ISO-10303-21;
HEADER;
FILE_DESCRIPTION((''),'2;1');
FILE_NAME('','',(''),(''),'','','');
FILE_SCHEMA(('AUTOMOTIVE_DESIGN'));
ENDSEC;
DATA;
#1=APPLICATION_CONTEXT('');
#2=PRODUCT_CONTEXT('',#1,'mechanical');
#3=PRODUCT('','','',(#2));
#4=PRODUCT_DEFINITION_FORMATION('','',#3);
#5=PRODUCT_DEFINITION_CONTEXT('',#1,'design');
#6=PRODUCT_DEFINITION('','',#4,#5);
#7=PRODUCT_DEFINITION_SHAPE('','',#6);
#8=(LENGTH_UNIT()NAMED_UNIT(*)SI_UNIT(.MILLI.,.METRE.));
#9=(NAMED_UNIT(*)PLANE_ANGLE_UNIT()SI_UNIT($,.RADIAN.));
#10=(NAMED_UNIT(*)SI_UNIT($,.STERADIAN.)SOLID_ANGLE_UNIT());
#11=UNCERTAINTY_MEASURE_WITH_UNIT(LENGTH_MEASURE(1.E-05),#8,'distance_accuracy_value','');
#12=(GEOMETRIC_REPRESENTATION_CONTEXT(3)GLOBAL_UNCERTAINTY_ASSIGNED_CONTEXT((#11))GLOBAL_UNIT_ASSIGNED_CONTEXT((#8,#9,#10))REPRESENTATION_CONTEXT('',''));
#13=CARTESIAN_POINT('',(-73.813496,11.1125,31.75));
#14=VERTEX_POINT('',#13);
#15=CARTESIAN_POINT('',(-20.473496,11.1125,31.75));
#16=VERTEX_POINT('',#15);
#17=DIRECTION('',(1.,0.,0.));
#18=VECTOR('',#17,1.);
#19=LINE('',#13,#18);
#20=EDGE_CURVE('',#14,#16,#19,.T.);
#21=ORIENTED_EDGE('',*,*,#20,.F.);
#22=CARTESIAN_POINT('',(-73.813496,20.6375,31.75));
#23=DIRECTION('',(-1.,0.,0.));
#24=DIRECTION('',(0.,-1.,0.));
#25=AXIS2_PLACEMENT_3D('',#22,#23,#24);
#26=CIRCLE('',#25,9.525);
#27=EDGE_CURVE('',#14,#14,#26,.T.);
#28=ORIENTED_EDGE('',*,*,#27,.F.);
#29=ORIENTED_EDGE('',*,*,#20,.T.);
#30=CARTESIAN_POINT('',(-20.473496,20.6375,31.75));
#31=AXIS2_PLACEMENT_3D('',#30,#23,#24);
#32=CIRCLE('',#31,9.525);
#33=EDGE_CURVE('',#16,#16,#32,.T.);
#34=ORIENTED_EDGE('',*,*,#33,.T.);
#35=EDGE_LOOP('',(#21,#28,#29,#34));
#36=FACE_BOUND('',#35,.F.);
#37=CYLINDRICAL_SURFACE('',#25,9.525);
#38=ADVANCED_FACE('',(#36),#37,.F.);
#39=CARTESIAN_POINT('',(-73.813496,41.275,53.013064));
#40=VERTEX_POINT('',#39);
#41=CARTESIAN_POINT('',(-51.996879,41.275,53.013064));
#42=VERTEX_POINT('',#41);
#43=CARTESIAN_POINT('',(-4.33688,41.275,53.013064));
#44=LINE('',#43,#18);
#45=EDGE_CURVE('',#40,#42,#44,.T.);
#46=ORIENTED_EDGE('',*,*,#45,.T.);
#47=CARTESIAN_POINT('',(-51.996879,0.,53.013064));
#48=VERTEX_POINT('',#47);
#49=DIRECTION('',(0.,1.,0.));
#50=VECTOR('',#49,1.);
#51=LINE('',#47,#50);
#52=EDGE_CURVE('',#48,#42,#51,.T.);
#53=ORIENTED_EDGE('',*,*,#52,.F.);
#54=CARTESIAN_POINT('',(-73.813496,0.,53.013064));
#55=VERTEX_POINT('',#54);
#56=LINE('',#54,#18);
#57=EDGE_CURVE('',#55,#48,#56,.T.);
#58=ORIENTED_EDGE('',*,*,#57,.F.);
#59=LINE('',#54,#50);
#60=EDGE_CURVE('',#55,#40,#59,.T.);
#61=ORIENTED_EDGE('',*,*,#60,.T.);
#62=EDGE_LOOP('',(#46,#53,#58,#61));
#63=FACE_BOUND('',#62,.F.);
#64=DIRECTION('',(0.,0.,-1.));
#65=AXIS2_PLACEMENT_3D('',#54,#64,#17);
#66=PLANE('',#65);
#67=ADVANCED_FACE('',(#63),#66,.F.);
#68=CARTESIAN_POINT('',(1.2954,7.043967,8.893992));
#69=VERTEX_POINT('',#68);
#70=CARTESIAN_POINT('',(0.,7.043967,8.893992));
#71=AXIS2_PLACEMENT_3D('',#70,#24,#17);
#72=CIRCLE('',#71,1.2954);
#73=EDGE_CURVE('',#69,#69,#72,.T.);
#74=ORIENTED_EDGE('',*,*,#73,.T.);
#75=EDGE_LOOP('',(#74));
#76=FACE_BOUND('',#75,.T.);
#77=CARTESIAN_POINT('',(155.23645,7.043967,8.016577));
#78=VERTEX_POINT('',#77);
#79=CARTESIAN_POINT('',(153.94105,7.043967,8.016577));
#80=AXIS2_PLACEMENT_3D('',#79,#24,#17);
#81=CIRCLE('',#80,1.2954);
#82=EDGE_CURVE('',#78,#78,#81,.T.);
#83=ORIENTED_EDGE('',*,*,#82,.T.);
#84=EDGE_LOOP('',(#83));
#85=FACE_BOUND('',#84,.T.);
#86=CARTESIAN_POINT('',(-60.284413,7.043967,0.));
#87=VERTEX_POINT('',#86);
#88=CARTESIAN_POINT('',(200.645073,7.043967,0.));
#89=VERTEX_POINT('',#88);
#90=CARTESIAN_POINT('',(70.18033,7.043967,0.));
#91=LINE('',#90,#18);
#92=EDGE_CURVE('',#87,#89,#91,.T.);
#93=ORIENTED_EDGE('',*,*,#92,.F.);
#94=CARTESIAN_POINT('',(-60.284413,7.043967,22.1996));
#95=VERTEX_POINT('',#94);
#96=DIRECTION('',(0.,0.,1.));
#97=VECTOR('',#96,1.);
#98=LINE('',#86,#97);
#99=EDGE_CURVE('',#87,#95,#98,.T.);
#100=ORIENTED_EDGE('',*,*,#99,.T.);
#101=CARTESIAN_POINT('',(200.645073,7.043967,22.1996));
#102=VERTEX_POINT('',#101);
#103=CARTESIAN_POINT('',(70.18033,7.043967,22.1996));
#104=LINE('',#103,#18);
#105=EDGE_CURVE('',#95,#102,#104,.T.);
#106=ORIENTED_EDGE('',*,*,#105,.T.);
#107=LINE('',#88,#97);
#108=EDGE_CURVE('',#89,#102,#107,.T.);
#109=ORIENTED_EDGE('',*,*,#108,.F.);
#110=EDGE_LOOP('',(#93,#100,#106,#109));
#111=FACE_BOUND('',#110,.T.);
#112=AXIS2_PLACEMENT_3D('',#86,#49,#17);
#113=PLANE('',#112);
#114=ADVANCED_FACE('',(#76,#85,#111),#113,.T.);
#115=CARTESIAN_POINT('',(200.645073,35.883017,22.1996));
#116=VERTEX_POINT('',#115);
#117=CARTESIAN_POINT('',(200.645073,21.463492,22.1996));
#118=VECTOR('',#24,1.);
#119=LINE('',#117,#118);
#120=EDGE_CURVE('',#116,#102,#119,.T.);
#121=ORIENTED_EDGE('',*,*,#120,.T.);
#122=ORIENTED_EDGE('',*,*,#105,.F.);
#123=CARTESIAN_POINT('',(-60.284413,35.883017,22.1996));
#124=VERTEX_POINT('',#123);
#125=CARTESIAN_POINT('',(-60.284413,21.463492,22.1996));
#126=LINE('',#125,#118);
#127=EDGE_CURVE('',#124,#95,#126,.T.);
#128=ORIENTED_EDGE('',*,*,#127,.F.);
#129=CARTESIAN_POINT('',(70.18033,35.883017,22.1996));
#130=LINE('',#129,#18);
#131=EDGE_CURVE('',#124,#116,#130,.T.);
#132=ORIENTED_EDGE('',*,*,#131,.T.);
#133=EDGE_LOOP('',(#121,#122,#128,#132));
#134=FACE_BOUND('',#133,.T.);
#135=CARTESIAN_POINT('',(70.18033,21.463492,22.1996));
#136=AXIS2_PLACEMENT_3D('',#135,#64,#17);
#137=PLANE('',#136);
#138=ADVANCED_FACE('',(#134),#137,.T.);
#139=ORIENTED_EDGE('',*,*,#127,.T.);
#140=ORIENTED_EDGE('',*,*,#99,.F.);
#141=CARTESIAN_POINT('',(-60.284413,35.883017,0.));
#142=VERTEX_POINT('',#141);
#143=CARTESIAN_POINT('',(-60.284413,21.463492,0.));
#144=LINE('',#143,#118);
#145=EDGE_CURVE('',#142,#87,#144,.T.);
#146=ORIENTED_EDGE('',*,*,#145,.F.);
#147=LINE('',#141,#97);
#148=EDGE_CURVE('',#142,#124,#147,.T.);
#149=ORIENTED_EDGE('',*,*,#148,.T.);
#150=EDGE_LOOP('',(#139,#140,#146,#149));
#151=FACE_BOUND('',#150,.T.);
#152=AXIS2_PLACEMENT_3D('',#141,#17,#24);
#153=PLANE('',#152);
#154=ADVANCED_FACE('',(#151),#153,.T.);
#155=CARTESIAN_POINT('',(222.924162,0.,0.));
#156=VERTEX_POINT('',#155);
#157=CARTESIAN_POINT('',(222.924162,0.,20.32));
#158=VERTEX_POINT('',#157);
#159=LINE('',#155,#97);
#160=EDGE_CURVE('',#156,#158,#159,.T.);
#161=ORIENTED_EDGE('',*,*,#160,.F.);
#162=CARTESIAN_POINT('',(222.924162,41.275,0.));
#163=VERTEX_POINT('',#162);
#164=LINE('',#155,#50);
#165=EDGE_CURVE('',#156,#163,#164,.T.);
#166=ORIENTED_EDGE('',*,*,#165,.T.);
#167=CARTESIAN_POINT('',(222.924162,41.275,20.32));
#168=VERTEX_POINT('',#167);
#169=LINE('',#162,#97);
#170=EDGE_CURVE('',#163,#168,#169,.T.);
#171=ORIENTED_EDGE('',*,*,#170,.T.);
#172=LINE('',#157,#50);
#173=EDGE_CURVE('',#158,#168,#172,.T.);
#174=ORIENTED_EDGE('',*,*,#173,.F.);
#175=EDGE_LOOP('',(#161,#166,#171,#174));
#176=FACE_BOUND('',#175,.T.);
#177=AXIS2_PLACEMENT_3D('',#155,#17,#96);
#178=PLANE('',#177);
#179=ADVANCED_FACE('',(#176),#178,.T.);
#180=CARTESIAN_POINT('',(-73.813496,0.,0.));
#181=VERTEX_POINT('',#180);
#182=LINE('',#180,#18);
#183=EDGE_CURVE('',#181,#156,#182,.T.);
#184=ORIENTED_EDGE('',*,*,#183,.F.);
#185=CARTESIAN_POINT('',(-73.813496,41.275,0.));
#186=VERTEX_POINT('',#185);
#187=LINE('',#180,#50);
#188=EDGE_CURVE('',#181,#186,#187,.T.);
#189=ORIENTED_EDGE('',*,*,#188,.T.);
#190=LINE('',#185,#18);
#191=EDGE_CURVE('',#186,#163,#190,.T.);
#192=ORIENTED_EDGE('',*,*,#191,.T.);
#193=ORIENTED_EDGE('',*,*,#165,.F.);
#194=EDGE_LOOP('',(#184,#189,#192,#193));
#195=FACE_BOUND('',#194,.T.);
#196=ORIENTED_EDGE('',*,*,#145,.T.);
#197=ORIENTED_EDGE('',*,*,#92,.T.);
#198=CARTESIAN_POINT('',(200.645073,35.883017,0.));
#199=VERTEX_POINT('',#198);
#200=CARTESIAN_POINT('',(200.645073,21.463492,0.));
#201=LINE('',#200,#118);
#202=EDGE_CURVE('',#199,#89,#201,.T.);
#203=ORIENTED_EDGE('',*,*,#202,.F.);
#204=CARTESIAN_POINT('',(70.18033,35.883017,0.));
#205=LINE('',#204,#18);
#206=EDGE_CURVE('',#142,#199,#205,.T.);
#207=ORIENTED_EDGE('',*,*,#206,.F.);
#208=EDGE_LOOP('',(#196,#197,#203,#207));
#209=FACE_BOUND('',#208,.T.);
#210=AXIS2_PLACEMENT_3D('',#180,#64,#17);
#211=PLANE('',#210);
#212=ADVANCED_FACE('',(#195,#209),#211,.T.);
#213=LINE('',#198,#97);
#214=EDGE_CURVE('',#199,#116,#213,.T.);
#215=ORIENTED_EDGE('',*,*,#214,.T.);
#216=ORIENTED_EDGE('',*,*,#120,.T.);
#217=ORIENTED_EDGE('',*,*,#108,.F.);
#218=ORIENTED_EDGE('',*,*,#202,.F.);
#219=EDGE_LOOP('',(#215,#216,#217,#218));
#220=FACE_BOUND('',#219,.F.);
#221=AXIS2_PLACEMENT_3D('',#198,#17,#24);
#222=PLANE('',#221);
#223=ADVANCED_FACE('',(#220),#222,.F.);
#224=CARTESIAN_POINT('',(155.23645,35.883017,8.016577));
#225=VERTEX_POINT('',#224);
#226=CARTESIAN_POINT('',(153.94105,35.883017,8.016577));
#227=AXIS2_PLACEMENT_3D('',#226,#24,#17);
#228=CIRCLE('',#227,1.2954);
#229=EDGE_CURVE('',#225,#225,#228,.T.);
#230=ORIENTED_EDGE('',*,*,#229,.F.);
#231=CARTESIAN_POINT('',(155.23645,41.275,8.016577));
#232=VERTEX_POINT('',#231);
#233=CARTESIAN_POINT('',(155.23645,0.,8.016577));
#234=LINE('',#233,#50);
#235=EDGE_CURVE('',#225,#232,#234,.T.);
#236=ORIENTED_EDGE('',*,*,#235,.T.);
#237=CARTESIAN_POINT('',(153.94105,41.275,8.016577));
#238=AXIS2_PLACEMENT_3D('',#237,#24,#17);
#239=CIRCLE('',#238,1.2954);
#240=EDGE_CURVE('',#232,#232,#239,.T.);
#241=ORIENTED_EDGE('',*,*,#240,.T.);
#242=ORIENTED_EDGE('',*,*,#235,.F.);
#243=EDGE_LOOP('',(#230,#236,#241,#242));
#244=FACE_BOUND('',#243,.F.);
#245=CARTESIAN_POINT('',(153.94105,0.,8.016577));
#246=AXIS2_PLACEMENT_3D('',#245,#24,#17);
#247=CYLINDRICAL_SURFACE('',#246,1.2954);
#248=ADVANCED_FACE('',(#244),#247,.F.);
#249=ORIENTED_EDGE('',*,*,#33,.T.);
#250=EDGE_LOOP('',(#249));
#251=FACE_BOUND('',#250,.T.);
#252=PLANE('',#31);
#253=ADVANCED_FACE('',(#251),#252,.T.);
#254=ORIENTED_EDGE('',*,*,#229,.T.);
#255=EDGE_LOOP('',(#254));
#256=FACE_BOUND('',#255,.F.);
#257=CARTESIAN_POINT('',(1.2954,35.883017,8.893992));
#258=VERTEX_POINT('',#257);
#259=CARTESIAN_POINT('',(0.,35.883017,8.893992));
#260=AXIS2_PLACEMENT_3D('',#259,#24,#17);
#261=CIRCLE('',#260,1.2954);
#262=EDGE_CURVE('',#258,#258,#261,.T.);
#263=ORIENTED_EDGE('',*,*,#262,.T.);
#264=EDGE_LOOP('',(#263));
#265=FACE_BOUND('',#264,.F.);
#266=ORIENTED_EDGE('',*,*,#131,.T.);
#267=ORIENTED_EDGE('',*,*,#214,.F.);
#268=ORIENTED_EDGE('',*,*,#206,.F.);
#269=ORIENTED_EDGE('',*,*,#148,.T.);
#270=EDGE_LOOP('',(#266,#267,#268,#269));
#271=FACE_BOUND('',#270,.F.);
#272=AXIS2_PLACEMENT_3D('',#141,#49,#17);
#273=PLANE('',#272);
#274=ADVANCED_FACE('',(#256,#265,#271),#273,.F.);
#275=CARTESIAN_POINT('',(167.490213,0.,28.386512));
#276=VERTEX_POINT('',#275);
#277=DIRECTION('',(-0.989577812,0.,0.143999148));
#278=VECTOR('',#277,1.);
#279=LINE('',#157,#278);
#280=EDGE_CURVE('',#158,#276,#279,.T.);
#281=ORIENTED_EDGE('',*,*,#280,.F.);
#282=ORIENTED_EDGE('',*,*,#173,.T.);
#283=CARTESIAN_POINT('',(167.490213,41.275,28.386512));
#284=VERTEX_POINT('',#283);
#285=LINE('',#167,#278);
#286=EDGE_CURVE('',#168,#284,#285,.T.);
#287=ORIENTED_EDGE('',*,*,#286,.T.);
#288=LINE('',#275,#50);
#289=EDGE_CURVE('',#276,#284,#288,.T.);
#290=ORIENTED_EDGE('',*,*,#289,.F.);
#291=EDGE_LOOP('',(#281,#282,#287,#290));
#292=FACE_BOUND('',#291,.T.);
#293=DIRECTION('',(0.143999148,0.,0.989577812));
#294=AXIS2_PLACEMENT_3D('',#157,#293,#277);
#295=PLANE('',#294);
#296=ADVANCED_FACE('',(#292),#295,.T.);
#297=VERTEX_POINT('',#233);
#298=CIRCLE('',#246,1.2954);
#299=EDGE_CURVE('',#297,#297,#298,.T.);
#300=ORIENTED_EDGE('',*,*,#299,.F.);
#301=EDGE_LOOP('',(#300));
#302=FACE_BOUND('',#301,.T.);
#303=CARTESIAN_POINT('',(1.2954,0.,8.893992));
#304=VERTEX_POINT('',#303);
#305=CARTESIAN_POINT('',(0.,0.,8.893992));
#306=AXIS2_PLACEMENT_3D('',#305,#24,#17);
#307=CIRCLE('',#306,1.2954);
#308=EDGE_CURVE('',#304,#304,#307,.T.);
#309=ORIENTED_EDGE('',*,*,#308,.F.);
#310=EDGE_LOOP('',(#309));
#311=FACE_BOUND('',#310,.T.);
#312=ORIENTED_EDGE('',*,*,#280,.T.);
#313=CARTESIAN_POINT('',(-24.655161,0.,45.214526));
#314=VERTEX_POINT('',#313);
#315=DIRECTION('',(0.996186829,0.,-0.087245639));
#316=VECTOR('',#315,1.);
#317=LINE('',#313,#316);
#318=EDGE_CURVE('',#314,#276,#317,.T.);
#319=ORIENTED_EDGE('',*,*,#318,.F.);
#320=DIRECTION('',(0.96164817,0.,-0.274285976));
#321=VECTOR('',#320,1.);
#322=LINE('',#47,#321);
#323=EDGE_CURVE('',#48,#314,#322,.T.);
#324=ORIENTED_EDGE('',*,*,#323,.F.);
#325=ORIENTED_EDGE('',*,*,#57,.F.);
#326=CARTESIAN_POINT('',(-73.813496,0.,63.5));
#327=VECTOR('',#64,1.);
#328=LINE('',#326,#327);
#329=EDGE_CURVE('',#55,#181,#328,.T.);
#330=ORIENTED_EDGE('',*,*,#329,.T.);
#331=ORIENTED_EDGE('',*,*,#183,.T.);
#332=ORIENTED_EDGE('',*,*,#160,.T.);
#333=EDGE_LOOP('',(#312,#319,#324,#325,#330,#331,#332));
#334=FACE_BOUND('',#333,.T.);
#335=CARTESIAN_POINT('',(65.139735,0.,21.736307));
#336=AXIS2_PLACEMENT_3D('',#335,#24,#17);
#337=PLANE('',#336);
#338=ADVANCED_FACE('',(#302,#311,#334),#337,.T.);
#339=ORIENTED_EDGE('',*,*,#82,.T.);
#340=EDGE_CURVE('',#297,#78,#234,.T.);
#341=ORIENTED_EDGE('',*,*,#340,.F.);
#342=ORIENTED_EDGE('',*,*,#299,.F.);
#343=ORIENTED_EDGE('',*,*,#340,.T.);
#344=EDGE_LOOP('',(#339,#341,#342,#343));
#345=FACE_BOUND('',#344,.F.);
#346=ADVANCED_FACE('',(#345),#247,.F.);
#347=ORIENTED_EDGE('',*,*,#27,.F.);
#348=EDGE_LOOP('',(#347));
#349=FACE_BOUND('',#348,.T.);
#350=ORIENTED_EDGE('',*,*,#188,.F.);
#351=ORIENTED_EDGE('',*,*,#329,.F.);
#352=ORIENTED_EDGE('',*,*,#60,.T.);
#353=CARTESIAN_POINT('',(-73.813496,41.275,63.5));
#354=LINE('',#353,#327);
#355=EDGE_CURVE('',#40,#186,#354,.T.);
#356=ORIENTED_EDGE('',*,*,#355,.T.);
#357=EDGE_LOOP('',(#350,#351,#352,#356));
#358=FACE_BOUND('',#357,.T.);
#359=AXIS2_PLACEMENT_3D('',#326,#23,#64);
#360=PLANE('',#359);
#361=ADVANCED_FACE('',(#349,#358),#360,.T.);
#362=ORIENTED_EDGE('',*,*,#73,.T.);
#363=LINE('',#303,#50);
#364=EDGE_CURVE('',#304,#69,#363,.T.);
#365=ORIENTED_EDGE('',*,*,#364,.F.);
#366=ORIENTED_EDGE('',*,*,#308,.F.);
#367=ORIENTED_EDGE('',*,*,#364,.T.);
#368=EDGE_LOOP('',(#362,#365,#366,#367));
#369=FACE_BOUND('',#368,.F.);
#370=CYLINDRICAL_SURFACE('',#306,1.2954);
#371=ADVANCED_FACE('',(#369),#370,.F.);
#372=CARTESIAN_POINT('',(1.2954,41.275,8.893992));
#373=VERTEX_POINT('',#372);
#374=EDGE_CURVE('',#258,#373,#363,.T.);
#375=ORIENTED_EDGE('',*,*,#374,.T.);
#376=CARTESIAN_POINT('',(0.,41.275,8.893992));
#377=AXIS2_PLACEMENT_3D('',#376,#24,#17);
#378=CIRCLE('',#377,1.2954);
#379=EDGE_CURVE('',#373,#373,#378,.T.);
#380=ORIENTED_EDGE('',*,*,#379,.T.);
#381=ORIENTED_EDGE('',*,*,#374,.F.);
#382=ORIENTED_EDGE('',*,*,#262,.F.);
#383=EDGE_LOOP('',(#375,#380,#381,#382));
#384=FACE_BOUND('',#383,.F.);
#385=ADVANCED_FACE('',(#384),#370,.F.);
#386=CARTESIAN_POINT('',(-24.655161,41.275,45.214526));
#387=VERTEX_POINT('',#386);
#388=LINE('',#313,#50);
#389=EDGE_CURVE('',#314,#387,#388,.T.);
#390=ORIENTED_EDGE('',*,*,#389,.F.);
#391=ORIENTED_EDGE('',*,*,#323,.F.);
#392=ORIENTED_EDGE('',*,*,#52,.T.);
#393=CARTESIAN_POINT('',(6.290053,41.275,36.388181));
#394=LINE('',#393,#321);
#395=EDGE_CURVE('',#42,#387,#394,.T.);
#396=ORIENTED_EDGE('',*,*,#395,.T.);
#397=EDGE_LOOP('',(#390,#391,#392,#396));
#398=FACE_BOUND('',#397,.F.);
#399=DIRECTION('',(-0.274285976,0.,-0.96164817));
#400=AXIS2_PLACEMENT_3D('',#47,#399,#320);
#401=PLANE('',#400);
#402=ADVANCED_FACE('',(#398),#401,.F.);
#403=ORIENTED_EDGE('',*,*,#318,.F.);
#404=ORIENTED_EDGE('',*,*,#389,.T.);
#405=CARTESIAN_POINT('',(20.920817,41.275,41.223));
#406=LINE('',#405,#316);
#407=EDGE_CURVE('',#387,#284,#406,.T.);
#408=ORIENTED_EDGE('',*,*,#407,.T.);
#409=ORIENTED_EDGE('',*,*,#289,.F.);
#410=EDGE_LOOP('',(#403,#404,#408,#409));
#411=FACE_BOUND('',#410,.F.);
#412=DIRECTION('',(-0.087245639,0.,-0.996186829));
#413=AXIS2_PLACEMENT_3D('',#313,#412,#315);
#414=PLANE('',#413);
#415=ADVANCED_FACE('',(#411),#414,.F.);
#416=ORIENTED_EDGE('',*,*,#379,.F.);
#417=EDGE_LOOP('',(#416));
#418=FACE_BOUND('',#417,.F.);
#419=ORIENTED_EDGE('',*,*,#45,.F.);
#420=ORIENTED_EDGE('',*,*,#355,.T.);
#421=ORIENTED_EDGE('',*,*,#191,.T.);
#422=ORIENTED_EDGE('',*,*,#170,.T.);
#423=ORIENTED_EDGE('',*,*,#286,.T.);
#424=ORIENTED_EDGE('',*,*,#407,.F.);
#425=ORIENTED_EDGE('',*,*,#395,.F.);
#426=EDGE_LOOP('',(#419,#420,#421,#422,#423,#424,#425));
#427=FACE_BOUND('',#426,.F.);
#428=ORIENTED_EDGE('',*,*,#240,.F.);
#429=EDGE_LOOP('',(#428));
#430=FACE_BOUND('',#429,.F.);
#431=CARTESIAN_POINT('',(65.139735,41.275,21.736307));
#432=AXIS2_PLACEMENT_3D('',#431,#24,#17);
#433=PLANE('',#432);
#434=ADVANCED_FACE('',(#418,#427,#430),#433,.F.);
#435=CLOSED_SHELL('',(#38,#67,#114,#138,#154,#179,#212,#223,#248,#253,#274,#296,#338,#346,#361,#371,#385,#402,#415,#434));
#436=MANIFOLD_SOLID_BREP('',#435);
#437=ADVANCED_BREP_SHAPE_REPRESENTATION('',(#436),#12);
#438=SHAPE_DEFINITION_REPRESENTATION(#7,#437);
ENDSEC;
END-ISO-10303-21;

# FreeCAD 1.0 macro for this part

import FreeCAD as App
import Part
import Sketcher
Q = App.Units.Quantity


def add_polygon(sketch, points):
    """Adds a closed chain of lines whose ends are joined by coincident constraints."""
    first, n = sketch.GeometryCount, len(points)
    for a, b in zip(points, points[1:] + points[:1]):
        sketch.addGeometry(Part.LineSegment(App.Vector(*a, 0), App.Vector(*b, 0)), False)
    for i in range(n):
        sketch.addConstraint(Sketcher.Constraint("Coincident", first + i, 2, first + (i + 1) % n, 1))

doc = App.newDocument("Part")
params = doc.addObject("Spreadsheet::Sheet", "Params")
for row, (alias, value) in enumerate([
    ("sketch1_height", "2.5 in"),
    ("sketch1_height2", "0.8 in"),
    ("pad1_length", "1.625 in"),
    ("sketch2_diameter", "0.75 in"),
    ("pocket1_length", "2.1 in"),
    ("pocket2_length", "0.874 in"),
    ("pocket3_length", "2 in"),
    ("sketch5_diameter", "0.102 in"),
    ("pocket4_length", "4 in"),
    ("sketch6_diameter", "0.102 in"),
    ("pocket5_length", "4 in"),
], start=1):
    params.set(f"A{row}", alias)
    params.set(f"B{row}", "=" + value)
    params.setAlias(f"B{row}", alias)

body = doc.addObject("PartDesign::Body", "Body")

sketch1 = body.newObject("Sketcher::SketchObject", "Sketch")
sketch1.AttachmentSupport = (doc.getObject("XZ_Plane"), [""])
sketch1.MapMode = "FlatFace"
add_polygon(sketch1, [(-73.813496, 63.5), (-73.813496, 0), (222.924162, 0), (222.924162, 20.32)])
sketch1.addConstraint([
    Sketcher.Constraint("Vertical", 0),
    Sketcher.Constraint("Horizontal", 1),
    Sketcher.Constraint("Vertical", 2),
    Sketcher.Constraint("PointOnObject", 0, 2, -1),
    Sketcher.Constraint("DistanceY", 0, 2, 0, 1, Q("2.5 in")),
    Sketcher.Constraint("DistanceY", 2, 1, 2, 2, Q("0.8 in")),
    Sketcher.Constraint("DistanceX", 1, 1, 1, 2, 296.737658),
    Sketcher.Constraint("DistanceX", -1, 1, 1, 2, 222.924162),
])
sketch1.setExpression("Constraints[8]", "Params.sketch1_height")
sketch1.setExpression("Constraints[9]", "Params.sketch1_height2")
pad1 = body.newObject("PartDesign::Pad", "Pad")
pad1.Profile = sketch1
pad1.setExpression("Length", "Params.pad1_length")
pad1.Reversed = True

sketch2 = body.newObject("Sketcher::SketchObject", "Sketch001")
sketch2.AttachmentSupport = (doc.getObject("YZ_Plane"), [""])
sketch2.MapMode = "FlatFace"
sketch2.AttachmentOffset = App.Placement(App.Vector(0, 0, -73.813496), App.Rotation())
sketch2.addGeometry(Part.Circle(App.Vector(20.6375, 31.75, 0), App.Vector(0, 0, 1), 9.525), False)
sketch2.addConstraint([
    Sketcher.Constraint("Diameter", 0, Q("0.75 in")),
    Sketcher.Constraint("DistanceY", -1, 1, 0, 3, Q("1.25 in")),
    Sketcher.Constraint("DistanceX", -1, 1, 0, 3, Q("0.8125 in")),
])
sketch2.setExpression("Constraints[0]", "Params.sketch2_diameter")
pocket1 = body.newObject("PartDesign::Pocket", "Pocket")
pocket1.Profile = sketch2
pocket1.setExpression("Length", "Params.pocket1_length")
pocket1.Reversed = True

sketch3 = body.newObject("Sketcher::SketchObject", "Sketch002")
sketch3.AttachmentSupport = (doc.getObject("XY_Plane"), [""])
sketch3.MapMode = "FlatFace"
add_polygon(sketch3, [(-60.284413, 7.043967), (-60.284413, 35.883017), (200.645073, 35.883017), (200.645073, 7.043967)])
sketch3.addConstraint([
    Sketcher.Constraint("Vertical", 0),
    Sketcher.Constraint("Horizontal", 1),
    Sketcher.Constraint("Vertical", 2),
    Sketcher.Constraint("Horizontal", 3),
    Sketcher.Constraint("DistanceY", 0, 1, 0, 2, 28.83905),
    Sketcher.Constraint("DistanceX", 1, 1, 1, 2, 260.929487),
    Sketcher.Constraint("DistanceX", 0, 2, -1, 1, 60.284413),
    Sketcher.Constraint("DistanceY", -1, 1, 0, 2, 35.883017),
])
pocket2 = body.newObject("PartDesign::Pocket", "Pocket001")
pocket2.Profile = sketch3
pocket2.setExpression("Length", "Params.pocket2_length")
pocket2.Reversed = True

sketch4 = body.newObject("Sketcher::SketchObject", "Sketch003")
sketch4.AttachmentSupport = (doc.getObject("XZ_Plane"), [""])
sketch4.MapMode = "FlatFace"
add_polygon(sketch4, [(-24.655161, 45.214526), (167.490213, 28.386512), (-73.813496, 63.5), (-73.813496, 53.013064), (-51.996879, 53.013064)])
sketch4.addConstraint([
    Sketcher.Constraint("Vertical", 2),
    Sketcher.Constraint("Horizontal", 3),
    Sketcher.Constraint("DistanceY", -1, 1, 1, 2, Q("2.5 in")),
    Sketcher.Constraint("Distance", 0, 192.880862),
    Sketcher.Constraint("Distance", 1, 243.845109),
    Sketcher.Constraint("DistanceX", 3, 1, 3, 2, 21.816617),
    Sketcher.Constraint("DistanceY", 2, 2, 2, 1, 10.486936),
    Sketcher.Constraint("DistanceY", -1, 1, 0, 2, 28.386512),
    Sketcher.Constraint("DistanceX", 3, 2, -1, 1, 51.996879),
    Sketcher.Constraint("DistanceX", 4, 2, -1, 1, 24.655161),
])
pocket3 = body.newObject("PartDesign::Pocket", "Pocket002")
pocket3.Profile = sketch4
pocket3.setExpression("Length", "Params.pocket3_length")

sketch5 = body.newObject("Sketcher::SketchObject", "Sketch004")
sketch5.AttachmentSupport = (doc.getObject("XZ_Plane"), [""])
sketch5.MapMode = "FlatFace"
sketch5.addGeometry(Part.Circle(App.Vector(0, 8.893992, 0), App.Vector(0, 0, 1), 1.2954), False)
sketch5.addConstraint([
    Sketcher.Constraint("PointOnObject", 0, 3, -2),
    Sketcher.Constraint("Diameter", 0, Q("0.102 in")),
    Sketcher.Constraint("DistanceY", -1, 1, 0, 3, 8.893992),
])
sketch5.setExpression("Constraints[1]", "Params.sketch5_diameter")
pocket4 = body.newObject("PartDesign::Pocket", "Pocket003")
pocket4.Profile = sketch5
pocket4.setExpression("Length", "Params.pocket4_length")

sketch6 = body.newObject("Sketcher::SketchObject", "Sketch005")
sketch6.AttachmentSupport = (doc.getObject("XZ_Plane"), [""])
sketch6.MapMode = "FlatFace"
sketch6.addGeometry(Part.Circle(App.Vector(153.94105, 8.016577, 0), App.Vector(0, 0, 1), 1.2954), False)
sketch6.addConstraint([
    Sketcher.Constraint("Diameter", 0, Q("0.102 in")),
    Sketcher.Constraint("DistanceX", -1, 1, 0, 3, 153.94105),
    Sketcher.Constraint("DistanceY", -1, 1, 0, 3, 8.016577),
])
sketch6.setExpression("Constraints[0]", "Params.sketch6_diameter")
pocket5 = body.newObject("PartDesign::Pocket", "Pocket004")
pocket5.Profile = sketch6
pocket5.setExpression("Length", "Params.pocket5_length")

doc.recompute()
